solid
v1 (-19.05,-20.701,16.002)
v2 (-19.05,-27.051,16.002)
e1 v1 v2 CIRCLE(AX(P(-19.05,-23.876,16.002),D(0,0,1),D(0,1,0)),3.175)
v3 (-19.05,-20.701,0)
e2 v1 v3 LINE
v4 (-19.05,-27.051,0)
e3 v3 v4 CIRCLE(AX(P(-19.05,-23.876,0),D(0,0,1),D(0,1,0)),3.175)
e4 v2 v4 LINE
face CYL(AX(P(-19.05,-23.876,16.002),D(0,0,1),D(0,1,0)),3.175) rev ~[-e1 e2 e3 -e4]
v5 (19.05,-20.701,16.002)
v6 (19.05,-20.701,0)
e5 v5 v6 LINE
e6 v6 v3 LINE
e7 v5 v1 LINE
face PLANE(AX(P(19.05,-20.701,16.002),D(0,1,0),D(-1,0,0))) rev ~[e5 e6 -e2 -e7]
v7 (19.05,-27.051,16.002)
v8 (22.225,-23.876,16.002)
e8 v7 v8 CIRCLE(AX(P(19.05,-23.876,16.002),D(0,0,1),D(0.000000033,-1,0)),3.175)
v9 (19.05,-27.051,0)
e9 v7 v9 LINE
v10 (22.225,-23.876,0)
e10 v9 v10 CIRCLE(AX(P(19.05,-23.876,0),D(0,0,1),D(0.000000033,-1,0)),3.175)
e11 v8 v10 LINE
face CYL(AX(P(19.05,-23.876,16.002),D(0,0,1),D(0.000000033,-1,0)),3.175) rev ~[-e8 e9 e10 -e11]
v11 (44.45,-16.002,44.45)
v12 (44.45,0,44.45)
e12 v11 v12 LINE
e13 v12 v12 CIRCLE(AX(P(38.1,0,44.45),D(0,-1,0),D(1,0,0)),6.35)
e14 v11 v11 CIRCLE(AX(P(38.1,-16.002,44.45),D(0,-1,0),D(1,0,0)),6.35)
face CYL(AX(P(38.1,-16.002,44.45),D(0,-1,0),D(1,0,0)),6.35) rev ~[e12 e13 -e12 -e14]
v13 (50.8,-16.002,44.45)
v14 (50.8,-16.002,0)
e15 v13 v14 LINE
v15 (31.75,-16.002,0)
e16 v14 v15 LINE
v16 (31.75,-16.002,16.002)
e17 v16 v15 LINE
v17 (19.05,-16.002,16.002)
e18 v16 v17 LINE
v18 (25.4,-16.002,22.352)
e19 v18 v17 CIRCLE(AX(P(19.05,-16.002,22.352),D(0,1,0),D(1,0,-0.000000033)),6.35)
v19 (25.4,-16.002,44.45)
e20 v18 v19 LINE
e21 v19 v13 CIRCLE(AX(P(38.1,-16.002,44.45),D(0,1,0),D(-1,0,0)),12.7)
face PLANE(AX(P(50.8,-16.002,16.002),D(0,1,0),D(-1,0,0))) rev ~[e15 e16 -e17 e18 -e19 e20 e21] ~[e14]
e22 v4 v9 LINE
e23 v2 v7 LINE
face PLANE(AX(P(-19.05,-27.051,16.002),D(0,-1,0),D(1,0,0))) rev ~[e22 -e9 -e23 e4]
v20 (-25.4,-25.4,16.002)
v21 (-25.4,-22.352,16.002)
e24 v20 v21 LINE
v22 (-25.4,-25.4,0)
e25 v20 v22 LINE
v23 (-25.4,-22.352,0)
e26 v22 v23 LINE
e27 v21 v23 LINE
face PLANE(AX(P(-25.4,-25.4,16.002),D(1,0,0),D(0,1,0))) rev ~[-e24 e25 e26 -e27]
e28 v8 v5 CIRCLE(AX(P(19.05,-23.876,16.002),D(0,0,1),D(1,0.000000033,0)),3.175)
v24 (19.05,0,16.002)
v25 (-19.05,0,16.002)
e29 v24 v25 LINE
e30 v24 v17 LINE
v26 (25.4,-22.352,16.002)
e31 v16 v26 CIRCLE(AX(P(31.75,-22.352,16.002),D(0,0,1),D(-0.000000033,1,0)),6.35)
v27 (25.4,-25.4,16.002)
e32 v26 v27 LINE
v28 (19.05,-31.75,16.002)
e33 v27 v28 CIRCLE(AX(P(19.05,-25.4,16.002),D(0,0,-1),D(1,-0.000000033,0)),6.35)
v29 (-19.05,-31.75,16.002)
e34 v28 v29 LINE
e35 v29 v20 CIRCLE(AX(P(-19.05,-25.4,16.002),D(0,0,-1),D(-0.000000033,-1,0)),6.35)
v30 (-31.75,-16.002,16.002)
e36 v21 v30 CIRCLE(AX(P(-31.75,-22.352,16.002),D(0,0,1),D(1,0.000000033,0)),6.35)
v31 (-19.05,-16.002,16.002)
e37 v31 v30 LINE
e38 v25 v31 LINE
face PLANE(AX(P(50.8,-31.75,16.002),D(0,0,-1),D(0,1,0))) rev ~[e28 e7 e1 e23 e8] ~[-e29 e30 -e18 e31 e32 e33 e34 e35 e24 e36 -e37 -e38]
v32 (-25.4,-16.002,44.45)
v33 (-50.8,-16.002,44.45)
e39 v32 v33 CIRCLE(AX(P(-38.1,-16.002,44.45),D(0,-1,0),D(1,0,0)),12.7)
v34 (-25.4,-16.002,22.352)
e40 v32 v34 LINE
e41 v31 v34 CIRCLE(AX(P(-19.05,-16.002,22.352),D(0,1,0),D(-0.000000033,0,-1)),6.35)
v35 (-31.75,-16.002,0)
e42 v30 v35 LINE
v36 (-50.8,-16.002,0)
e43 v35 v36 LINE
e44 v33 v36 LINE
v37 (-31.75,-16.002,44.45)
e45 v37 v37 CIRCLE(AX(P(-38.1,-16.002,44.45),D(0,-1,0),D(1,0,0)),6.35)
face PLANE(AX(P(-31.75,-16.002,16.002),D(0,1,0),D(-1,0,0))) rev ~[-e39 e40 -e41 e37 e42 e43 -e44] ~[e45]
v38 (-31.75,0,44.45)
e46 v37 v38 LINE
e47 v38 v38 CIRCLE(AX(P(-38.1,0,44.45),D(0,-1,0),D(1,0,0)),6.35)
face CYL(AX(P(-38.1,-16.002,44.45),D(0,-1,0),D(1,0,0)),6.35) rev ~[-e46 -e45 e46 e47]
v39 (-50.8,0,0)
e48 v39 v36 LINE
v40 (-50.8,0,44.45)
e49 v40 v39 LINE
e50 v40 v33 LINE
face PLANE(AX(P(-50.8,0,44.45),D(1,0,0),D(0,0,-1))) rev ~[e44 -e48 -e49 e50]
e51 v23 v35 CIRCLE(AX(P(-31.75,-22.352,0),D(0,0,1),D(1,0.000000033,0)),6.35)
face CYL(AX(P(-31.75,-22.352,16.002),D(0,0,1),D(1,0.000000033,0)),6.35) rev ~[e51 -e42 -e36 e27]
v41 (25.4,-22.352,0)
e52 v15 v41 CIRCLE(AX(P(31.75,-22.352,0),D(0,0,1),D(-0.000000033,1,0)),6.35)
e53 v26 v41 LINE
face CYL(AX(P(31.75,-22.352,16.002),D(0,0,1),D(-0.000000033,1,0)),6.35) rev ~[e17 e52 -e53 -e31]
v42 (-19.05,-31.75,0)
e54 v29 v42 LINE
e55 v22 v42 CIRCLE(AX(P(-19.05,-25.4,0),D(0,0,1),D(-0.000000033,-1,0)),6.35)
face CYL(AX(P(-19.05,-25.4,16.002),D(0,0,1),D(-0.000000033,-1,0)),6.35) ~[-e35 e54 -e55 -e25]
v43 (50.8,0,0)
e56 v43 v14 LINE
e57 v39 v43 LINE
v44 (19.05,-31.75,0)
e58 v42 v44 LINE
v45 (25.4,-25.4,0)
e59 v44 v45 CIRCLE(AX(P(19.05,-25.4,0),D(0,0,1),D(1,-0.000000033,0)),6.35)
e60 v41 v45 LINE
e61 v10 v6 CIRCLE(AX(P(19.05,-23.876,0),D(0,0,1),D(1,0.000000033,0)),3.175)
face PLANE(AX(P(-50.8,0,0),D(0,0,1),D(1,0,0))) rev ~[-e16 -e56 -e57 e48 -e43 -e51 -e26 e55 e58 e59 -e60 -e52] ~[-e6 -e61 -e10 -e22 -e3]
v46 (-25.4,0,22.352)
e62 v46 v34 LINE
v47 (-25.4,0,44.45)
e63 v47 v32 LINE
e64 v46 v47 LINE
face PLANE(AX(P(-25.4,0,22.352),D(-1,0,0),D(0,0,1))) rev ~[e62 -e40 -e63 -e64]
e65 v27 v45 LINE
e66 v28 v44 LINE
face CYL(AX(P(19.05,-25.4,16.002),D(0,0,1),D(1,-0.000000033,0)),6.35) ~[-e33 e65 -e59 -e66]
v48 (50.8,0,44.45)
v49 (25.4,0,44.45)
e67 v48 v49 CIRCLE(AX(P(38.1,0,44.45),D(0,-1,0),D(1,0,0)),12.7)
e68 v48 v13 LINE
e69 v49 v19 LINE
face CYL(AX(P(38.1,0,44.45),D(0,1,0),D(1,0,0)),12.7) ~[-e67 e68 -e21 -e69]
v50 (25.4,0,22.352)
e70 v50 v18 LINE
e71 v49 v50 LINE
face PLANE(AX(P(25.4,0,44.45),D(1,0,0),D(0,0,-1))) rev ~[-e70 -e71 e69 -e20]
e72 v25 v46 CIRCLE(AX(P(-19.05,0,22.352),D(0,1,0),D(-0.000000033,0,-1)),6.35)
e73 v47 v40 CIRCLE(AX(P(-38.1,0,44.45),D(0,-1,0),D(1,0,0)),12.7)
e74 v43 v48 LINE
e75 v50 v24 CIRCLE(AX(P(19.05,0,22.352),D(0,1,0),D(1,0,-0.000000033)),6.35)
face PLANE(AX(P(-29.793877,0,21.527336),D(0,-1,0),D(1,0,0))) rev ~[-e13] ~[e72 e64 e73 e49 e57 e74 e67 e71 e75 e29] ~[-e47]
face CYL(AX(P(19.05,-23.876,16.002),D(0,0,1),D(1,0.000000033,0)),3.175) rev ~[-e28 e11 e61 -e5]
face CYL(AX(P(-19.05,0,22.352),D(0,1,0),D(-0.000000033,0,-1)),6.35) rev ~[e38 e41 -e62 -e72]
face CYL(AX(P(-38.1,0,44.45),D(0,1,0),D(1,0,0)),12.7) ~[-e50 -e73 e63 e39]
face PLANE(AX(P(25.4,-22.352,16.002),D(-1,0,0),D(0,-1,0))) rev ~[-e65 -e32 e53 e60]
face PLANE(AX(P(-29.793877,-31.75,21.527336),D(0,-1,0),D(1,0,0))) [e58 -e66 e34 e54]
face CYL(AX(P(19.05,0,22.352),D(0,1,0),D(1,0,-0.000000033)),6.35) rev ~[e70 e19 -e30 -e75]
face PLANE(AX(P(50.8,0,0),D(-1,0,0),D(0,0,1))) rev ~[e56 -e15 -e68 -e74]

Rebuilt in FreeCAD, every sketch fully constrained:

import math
import FreeCAD as App
import Part
import Sketcher
Q = App.Units.Quantity

doc = App.newDocument("Part")
body = doc.addObject("PartDesign::Body", "Body")

# Sketch on XZ plane
sketch1 = body.newObject("Sketcher::SketchObject", "Sketch")
sketch1.AttachmentSupport = (doc.getObject("XZ_Plane"), [""])
sketch1.MapMode = "FlatFace"
sketch1.addGeometry([
    Part.LineSegment(App.Vector(-51, 0, 0), App.Vector(51, 0, 0)),  # 0
    Part.LineSegment(App.Vector(51, 0, 0), App.Vector(51, 44, 0)),  # 1
    Part.ArcOfCircle(Part.Circle(App.Vector(38, 44, 0), App.Vector(0, 0, 1), 13), math.radians(0), math.radians(180)),  # 2
    Part.LineSegment(App.Vector(25, 44, 0), App.Vector(25, 22, 0)),  # 3
    Part.ArcOfCircle(Part.Circle(App.Vector(19, 22, 0), App.Vector(0, 0, 1), 6), math.radians(-90), math.radians(0)),  # 4
    Part.LineSegment(App.Vector(19, 16, 0), App.Vector(-19, 16, 0)),  # 5
    Part.ArcOfCircle(Part.Circle(App.Vector(-19, 22, 0), App.Vector(0, 0, 1), 6), math.radians(-180), math.radians(-90)),  # 6
    Part.LineSegment(App.Vector(-25, 22, 0), App.Vector(-25, 44, 0)),  # 7
    Part.ArcOfCircle(Part.Circle(App.Vector(-38, 44, 0), App.Vector(0, 0, 1), 13), math.radians(0), math.radians(180)),  # 8
    Part.LineSegment(App.Vector(-51, 44, 0), App.Vector(-51, 0, 0)),  # 9
], False)
sketch1.addConstraint([
    Sketcher.Constraint("Coincident", 0, 2, 1, 1),
    Sketcher.Constraint("Tangent", 1, 2, 2, 1),
    Sketcher.Constraint("Tangent", 2, 2, 3, 1),
    Sketcher.Constraint("Tangent", 3, 2, 4, 2),
    Sketcher.Constraint("Tangent", 4, 1, 5, 1),
    Sketcher.Constraint("Tangent", 5, 2, 6, 2),
    Sketcher.Constraint("Tangent", 6, 1, 7, 1),
    Sketcher.Constraint("Tangent", 7, 2, 8, 1),
    Sketcher.Constraint("Tangent", 8, 2, 9, 1),
    Sketcher.Constraint("Coincident", 9, 2, 0, 1),
    Sketcher.Constraint("Horizontal", 0),
    Sketcher.Constraint("Vertical", 1),
    Sketcher.Constraint("Vertical", 3),
    Sketcher.Constraint("Horizontal", 5),
    Sketcher.Constraint("Vertical", 7),
    Sketcher.Constraint("Vertical", 9),
    Sketcher.Constraint("Equal", 4, 6),
    Sketcher.Constraint("Equal", 2, 8),
    Sketcher.Constraint("Symmetric", 0, 2, 9, 2, -1, 1),
    Sketcher.Constraint("Horizontal", 2, 3, 8, 3),
    Sketcher.Constraint("Radius", 2, Q("0.5 in")),
    Sketcher.Constraint("DistanceX", 0, 1, 0, 2, Q("4 in")),
    Sketcher.Constraint("Radius", 4, Q("0.25 in")),
    Sketcher.Constraint("DistanceY", 1, 1, 1, 2, Q("1.75 in")),
    Sketcher.Constraint("DistanceY", 3, 2, 3, 1, Q("0.87 in")),
])
pad1 = body.newObject("PartDesign::Pad", "Pad")
pad1.Profile = sketch1
pad1.Length = Q("1.25 in")

# Sketch on YZ plane
sketch2 = body.newObject("Sketcher::SketchObject", "Sketch001")
sketch2.AttachmentSupport = (doc.getObject("YZ_Plane"), [""])
sketch2.MapMode = "FlatFace"
sketch2.AttachmentOffset = App.Placement(App.Vector(0, 0, 2 * 25.4), App.Rotation())
sketch2.addGeometry([
    Part.LineSegment(App.Vector(-32, 16, 0), App.Vector(-16, 16, 0)),
    Part.LineSegment(App.Vector(-16, 16, 0), App.Vector(-16, 57, 0)),
    Part.LineSegment(App.Vector(-16, 57, 0), App.Vector(-32, 57, 0)),
    Part.LineSegment(App.Vector(-32, 57, 0), App.Vector(-32, 16, 0)),
], False)
sketch2.addConstraint([
    Sketcher.Constraint("Coincident", 0, 2, 1, 1),
    Sketcher.Constraint("Coincident", 1, 2, 2, 1),
    Sketcher.Constraint("Coincident", 2, 2, 3, 1),
    Sketcher.Constraint("Coincident", 3, 2, 0, 1),
    Sketcher.Constraint("Horizontal", 0),
    Sketcher.Constraint("Vertical", 1),
    Sketcher.Constraint("Horizontal", 2),
    Sketcher.Constraint("Vertical", 3),
    Sketcher.Constraint("DistanceX", 0, 1, 0, 2, Q("0.62 in")),
    Sketcher.Constraint("DistanceY", 1, 1, 1, 2, Q("1.62 in")),
    Sketcher.Constraint("DistanceX", 0, 2, -1, 1, Q("0.63 in")),
    Sketcher.Constraint("DistanceY", -1, 1, 0, 2, Q("0.63 in")),
])
pocket1 = body.newObject("PartDesign::Pocket", "Pocket")
pocket1.Profile = sketch2
pocket1.Type = "ThroughAll"

# Sketch on XY plane
sketch3 = body.newObject("Sketcher::SketchObject", "Sketch002")
sketch3.AttachmentSupport = (doc.getObject("XY_Plane"), [""])
sketch3.MapMode = "FlatFace"
sketch3.AttachmentOffset = App.Placement(App.Vector(0, 0, 0.63 * 25.4), App.Rotation())
sketch3.addGeometry([
    Part.LineSegment(App.Vector(-31.8, -16, 0), App.Vector(-50.8, -16, 0)),  # 0
    Part.LineSegment(App.Vector(-50.8, -16, 0), App.Vector(-50.8, -31.8, 0)),  # 1
    Part.LineSegment(App.Vector(-50.8, -31.8, 0), App.Vector(-19.1, -31.8, 0)),  # 2
    Part.ArcOfCircle(Part.Circle(App.Vector(-19, -25.4, 0), App.Vector(0, 0, 1), 6.4), math.radians(-180), math.radians(-90)),  # 3
    Part.LineSegment(App.Vector(-25.4, -25.4, 0), App.Vector(-25.4, -22.4, 0)),  # 4
    Part.ArcOfCircle(Part.Circle(App.Vector(-31.8, -22.4, 0), App.Vector(0, 0, 1), 6.4), math.radians(0), math.radians(90)),  # 5
    Part.LineSegment(App.Vector(-19.1, -27.1, 0), App.Vector(19.1, -27.1, 0)),  # 6
    Part.ArcOfCircle(Part.Circle(App.Vector(19, -23.9, 0), App.Vector(0, 0, 1), 3.2), math.radians(-90), math.radians(0)),  # 7
    Part.ArcOfCircle(Part.Circle(App.Vector(19, -23.9, 0), App.Vector(0, 0, 1), 3.2), math.radians(0), math.radians(90)),  # 8
    Part.LineSegment(App.Vector(19.1, -20.7, 0), App.Vector(-19.1, -20.7, 0)),  # 9
    Part.ArcOfCircle(Part.Circle(App.Vector(-19.1, -23.9, 0), App.Vector(0, 0, 1), 3.2), math.radians(90), math.radians(270)),  # 10
    Part.ArcOfCircle(Part.Circle(App.Vector(19, -25.4, 0), App.Vector(0, 0, 1), 6.4), math.radians(-90), math.radians(0)),  # 11
    Part.LineSegment(App.Vector(19.1, -31.8, 0), App.Vector(50.8, -31.8, 0)),  # 12
    Part.LineSegment(App.Vector(50.8, -31.8, 0), App.Vector(50.8, -16, 0)),  # 13
    Part.LineSegment(App.Vector(50.8, -16, 0), App.Vector(31.8, -16, 0)),  # 14
    Part.ArcOfCircle(Part.Circle(App.Vector(31.8, -22.4, 0), App.Vector(0, 0, 1), 6.4), math.radians(90), math.radians(180)),  # 15
    Part.LineSegment(App.Vector(25.4, -22.4, 0), App.Vector(25.4, -25.4, 0)),  # 16
], False)
sketch3.addConstraint([
    Sketcher.Constraint("Coincident", 0, 2, 1, 1),
    Sketcher.Constraint("Coincident", 1, 2, 2, 1),
    Sketcher.Constraint("Tangent", 2, 2, 3, 2),
    Sketcher.Constraint("Tangent", 3, 1, 4, 1),
    Sketcher.Constraint("Tangent", 4, 2, 5, 1),
    Sketcher.Constraint("Tangent", 5, 2, 0, 1),
    Sketcher.Constraint("Tangent", 6, 2, 7, 1),
    Sketcher.Constraint("Tangent", 7, 2, 8, 1),
    Sketcher.Constraint("Tangent", 8, 2, 9, 1),
    Sketcher.Constraint("Tangent", 9, 2, 10, 1),
    Sketcher.Constraint("Tangent", 10, 2, 6, 1),
    Sketcher.Constraint("Tangent", 11, 1, 12, 1),
    Sketcher.Constraint("Coincident", 12, 2, 13, 1),
    Sketcher.Constraint("Coincident", 13, 2, 14, 1),
    Sketcher.Constraint("Tangent", 14, 2, 15, 1),
    Sketcher.Constraint("Tangent", 15, 2, 16, 1),
    Sketcher.Constraint("Tangent", 16, 2, 11, 2),
    Sketcher.Constraint("Horizontal", 0),
    Sketcher.Constraint("Vertical", 1),
    Sketcher.Constraint("Horizontal", 2),
    Sketcher.Constraint("Vertical", 4),
    Sketcher.Constraint("Horizontal", 6),
    Sketcher.Constraint("Horizontal", 9),
    Sketcher.Constraint("Horizontal", 12),
    Sketcher.Constraint("Vertical", 13),
    Sketcher.Constraint("Horizontal", 14),
    Sketcher.Constraint("Vertical", 16),
    Sketcher.Constraint("Equal", 3, 5),
    Sketcher.Constraint("Equal", 7, 8),
    Sketcher.Constraint("Equal", 5, 11),
    Sketcher.Constraint("Equal", 11, 15),
    Sketcher.Constraint("Symmetric", 3, 3, 11, 3, -2),
    Sketcher.Constraint("Symmetric", 0, 2, 13, 2, -2),
    Sketcher.Constraint("Horizontal", 10, 3, 7, 2),
    Sketcher.Constraint("Vertical", 3, 3, 10, 3),
    Sketcher.Constraint("Vertical", 8, 3, 11, 3),
    Sketcher.Constraint("Radius", 3, Q("0.25 in")),
    Sketcher.Constraint("DistanceX", 6, 1, 6, 2, Q("1.5 in")),
    Sketcher.Constraint("DistanceY", 3, 3, -1, 1, Q("1 in")),
    Sketcher.Constraint("DistanceX", 0, 2, -1, 1, Q("2 in")),
    Sketcher.Constraint("Radius", 7, Q("0.125 in")),
    Sketcher.Constraint("DistanceY", 1, 2, 1, 1, Q("0.62 in")),
    Sketcher.Constraint("DistanceY", 7, 3, -1, 1, Q("0.94 in")),
])
pocket2 = body.newObject("PartDesign::Pocket", "Pocket001")
pocket2.Profile = sketch3
pocket2.Type = "ThroughAll"

# Sketch on XZ plane
sketch4 = body.newObject("Sketcher::SketchObject", "Sketch003")
sketch4.AttachmentSupport = (doc.getObject("XZ_Plane"), [""])
sketch4.MapMode = "FlatFace"
sketch4.AttachmentOffset = App.Placement(App.Vector(0, 0, 0.63 * 25.4), App.Rotation())
sketch4.addGeometry(Part.Circle(App.Vector(-38, 44, 0), App.Vector(0, 0, 1), 6), False)
sketch4.addConstraint([
    Sketcher.Constraint("Diameter", 0, Q("0.5 in")),
    Sketcher.Constraint("DistanceX", 0, 3, -1, 1, Q("1.5 in")),
    Sketcher.Constraint("DistanceY", -1, 1, 0, 3, Q("1.75 in")),
])
pocket3 = body.newObject("PartDesign::Pocket", "Pocket002")
pocket3.Profile = sketch4
pocket3.Type = "ThroughAll"

# Sketch on XZ plane
sketch5 = body.newObject("Sketcher::SketchObject", "Sketch004")
sketch5.AttachmentSupport = (doc.getObject("XZ_Plane"), [""])
sketch5.MapMode = "FlatFace"
sketch5.AttachmentOffset = App.Placement(App.Vector(0, 0, 0.63 * 25.4), App.Rotation())
sketch5.addGeometry(Part.Circle(App.Vector(38, 44, 0), App.Vector(0, 0, 1), 6), False)
sketch5.addConstraint([
    Sketcher.Constraint("Diameter", 0, Q("0.5 in")),
    Sketcher.Constraint("DistanceX", -1, 1, 0, 3, Q("1.5 in")),
    Sketcher.Constraint("DistanceY", -1, 1, 0, 3, Q("1.75 in")),
])
pocket4 = body.newObject("PartDesign::Pocket", "Pocket003")
pocket4.Profile = sketch5
pocket4.Type = "ThroughAll"

doc.recompute()
